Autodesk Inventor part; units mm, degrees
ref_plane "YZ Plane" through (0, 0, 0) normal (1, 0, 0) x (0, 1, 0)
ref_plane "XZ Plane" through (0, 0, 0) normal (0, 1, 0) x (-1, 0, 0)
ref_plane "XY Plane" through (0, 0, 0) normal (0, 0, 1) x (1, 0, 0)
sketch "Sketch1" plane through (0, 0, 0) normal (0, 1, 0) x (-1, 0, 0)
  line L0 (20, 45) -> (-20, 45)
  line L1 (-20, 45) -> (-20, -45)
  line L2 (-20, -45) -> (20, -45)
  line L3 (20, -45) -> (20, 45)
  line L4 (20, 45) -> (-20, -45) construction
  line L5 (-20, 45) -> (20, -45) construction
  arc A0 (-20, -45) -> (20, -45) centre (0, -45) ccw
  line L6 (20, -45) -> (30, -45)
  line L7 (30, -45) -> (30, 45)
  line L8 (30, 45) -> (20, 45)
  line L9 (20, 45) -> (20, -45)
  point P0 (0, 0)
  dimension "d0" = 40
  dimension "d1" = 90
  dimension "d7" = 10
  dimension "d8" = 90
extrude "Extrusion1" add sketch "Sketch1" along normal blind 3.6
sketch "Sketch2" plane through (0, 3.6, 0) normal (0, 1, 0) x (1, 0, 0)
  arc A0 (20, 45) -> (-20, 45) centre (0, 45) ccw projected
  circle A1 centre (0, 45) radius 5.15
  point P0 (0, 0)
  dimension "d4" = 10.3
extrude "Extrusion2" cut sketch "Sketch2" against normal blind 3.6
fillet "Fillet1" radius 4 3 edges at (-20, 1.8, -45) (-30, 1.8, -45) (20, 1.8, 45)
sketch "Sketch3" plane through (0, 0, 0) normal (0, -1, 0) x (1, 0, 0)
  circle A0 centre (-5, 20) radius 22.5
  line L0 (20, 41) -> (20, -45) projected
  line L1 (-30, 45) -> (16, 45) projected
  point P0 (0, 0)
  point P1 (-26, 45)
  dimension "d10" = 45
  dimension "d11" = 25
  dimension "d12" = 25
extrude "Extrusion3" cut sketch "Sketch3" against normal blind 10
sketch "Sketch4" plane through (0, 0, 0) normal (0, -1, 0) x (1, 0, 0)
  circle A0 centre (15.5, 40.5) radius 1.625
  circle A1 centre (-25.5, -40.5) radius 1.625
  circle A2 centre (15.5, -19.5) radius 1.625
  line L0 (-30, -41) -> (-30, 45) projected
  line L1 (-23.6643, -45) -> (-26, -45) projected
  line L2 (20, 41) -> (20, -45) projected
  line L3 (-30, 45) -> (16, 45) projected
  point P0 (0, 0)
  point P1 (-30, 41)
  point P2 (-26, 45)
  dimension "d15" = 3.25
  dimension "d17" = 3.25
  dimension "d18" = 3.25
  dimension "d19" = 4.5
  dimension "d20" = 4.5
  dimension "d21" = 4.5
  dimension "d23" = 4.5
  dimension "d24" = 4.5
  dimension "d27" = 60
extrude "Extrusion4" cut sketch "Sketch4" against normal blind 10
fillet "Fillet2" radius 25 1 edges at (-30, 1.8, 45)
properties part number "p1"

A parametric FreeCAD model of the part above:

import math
import FreeCAD as App
import Part
import Sketcher
from FreeCAD import Vector


def edges_at(feature, points):
    """Names of the edges that pass closest to the given points."""
    edges = feature.Shape.Edges
    near = lambda p: min(range(len(edges)), key=lambda i: edges[i].distToShape(Part.Vertex(*p))[0])
    return sorted({f"Edge{near(p) + 1}" for p in points})

doc = App.newDocument("Part")
params = doc.addObject("Spreadsheet::Sheet", "Params")
for row, (alias, value) in enumerate([
    ("sketch1_radius", "20 mm"),
    ("sketch1_width", "10 mm"),
    ("sketch1_height", "90 mm"),
    ("pad1_length", "3.6 mm"),
    ("sketch2_diameter", "10.3 mm"),
    ("pocket1_length", "3.6 mm"),
    ("fillet_radius", "4 mm"),
    ("sketch3_diameter", "45 mm"),
    ("pocket2_length", "10 mm"),
    ("sketch4_diameter", "3.25 mm"),
    ("pocket3_length", "10 mm"),
    ("fillet2_radius", "25 mm"),
], start=1):
    params.set(f"A{row}", alias)
    params.set(f"B{row}", "=" + value)
    params.setAlias(f"B{row}", alias)

body = doc.addObject("PartDesign::Body", "Body")

sketch1 = body.newObject("Sketcher::SketchObject", "Sketch")
sketch1.AttachmentSupport = (doc.getObject("XZ_Plane"), [""])
sketch1.MapMode = "FlatFace"
sketch1.addGeometry(Part.LineSegment(Vector(20, 45, 0), Vector(20, -45, 0)), False)
sketch1.addGeometry(Part.ArcOfCircle(Part.Circle(Vector(0, -45, 0), Vector(0, 0, 1), 20), math.radians(180), math.radians(360)), False)
sketch1.addGeometry(Part.LineSegment(Vector(-20, -45, 0), Vector(-30, -45, 0)), False)
sketch1.addGeometry(Part.LineSegment(Vector(-30, -45, 0), Vector(-30, 45, 0)), False)
sketch1.addGeometry(Part.LineSegment(Vector(-30, 45, 0), Vector(20, 45, 0)), False)
sketch1.addConstraint(Sketcher.Constraint("Tangent", 0, 2, 1, 2))
sketch1.addConstraint(Sketcher.Constraint("Coincident", 1, 1, 2, 1))
sketch1.addConstraint(Sketcher.Constraint("Coincident", 2, 2, 3, 1))
sketch1.addConstraint(Sketcher.Constraint("Coincident", 3, 2, 4, 1))
sketch1.addConstraint(Sketcher.Constraint("Coincident", 4, 2, 0, 1))
sketch1.addConstraint(Sketcher.Constraint("Vertical", 0))
sketch1.addConstraint(Sketcher.Constraint("Horizontal", 2))
sketch1.addConstraint(Sketcher.Constraint("Vertical", 3))
sketch1.addConstraint(Sketcher.Constraint("Horizontal", 4))
sketch1.addConstraint(Sketcher.Constraint("Symmetric", 1, 1, 4, 2, -1, 1))
sketch1.addConstraint(Sketcher.Constraint("Horizontal", 0, 2, 1, 1))
sketch1.addConstraint(Sketcher.Constraint("Radius", 1, 20.0))
sketch1.addConstraint(Sketcher.Constraint("DistanceX", 2, 2, 2, 1, 10.0))
sketch1.addConstraint(Sketcher.Constraint("DistanceY", 0, 2, 0, 1, 90.0))
sketch1.setExpression("Constraints[11]", "Params.sketch1_radius")
sketch1.setExpression("Constraints[12]", "Params.sketch1_width")
sketch1.setExpression("Constraints[13]", "Params.sketch1_height")
pad1 = body.newObject("PartDesign::Pad", "Pad")
pad1.Profile = sketch1
pad1.setExpression("Length", "Params.pad1_length")
pad1.Reversed = True

sketch2 = body.newObject("Sketcher::SketchObject", "Sketch001")
sketch2.AttachmentSupport = (doc.getObject("XZ_Plane"), [""])
sketch2.MapMode = "FlatFace"
sketch2.AttachmentOffset = App.Placement(Vector(0, 0, -3.6), App.Rotation())
sketch2.addGeometry(Part.Circle(Vector(0, -45, 0), Vector(0, 0, 1), 5.15), False)
sketch2.addConstraint(Sketcher.Constraint("PointOnObject", 0, 3, -2))
sketch2.addConstraint(Sketcher.Constraint("Diameter", 0, 10.3))
sketch2.addConstraint(Sketcher.Constraint("DistanceY", 0, 3, -1, 1, 45.0))
sketch2.setExpression("Constraints[1]", "Params.sketch2_diameter")
pocket1 = body.newObject("PartDesign::Pocket", "Pocket")
pocket1.Profile = sketch2
pocket1.setExpression("Length", "Params.pocket1_length")
pocket1.Reversed = True
doc.recompute()

fillet = body.newObject("PartDesign::Fillet", "Fillet")
fillet.Base = (pocket1, edges_at(pocket1, [(-20, 1.8, -45), (-30, 1.8, -45), (20, 1.8, 45)]))
fillet.setExpression("Radius", "Params.fillet_radius")

sketch3 = body.newObject("Sketcher::SketchObject", "Sketch002")
sketch3.AttachmentSupport = (doc.getObject("XZ_Plane"), [""])
sketch3.MapMode = "FlatFace"
sketch3.addGeometry(Part.Circle(Vector(-5, 20, 0), Vector(0, 0, 1), 22.5), False)
sketch3.addConstraint(Sketcher.Constraint("Diameter", 0, 45.0))
sketch3.addConstraint(Sketcher.Constraint("DistanceX", 0, 3, -1, 1, 5.0))
sketch3.addConstraint(Sketcher.Constraint("DistanceY", -1, 1, 0, 3, 20.0))
sketch3.setExpression("Constraints[0]", "Params.sketch3_diameter")
pocket2 = body.newObject("PartDesign::Pocket", "Pocket001")
pocket2.Profile = sketch3
pocket2.setExpression("Length", "Params.pocket2_length")

sketch4 = body.newObject("Sketcher::SketchObject", "Sketch003")
sketch4.AttachmentSupport = (doc.getObject("XZ_Plane"), [""])
sketch4.MapMode = "FlatFace"
sketch4.addGeometry(Part.Circle(Vector(15.5, 40.5, 0), Vector(0, 0, 1), 1.625), False)
sketch4.addGeometry(Part.Circle(Vector(-25.5, -40.5, 0), Vector(0, 0, 1), 1.625), False)
sketch4.addGeometry(Part.Circle(Vector(15.5, -19.5, 0), Vector(0, 0, 1), 1.625), False)
sketch4.addConstraint(Sketcher.Constraint("Equal", 0, 1))
sketch4.addConstraint(Sketcher.Constraint("Equal", 1, 2))
sketch4.addConstraint(Sketcher.Constraint("Vertical", 0, 3, 2, 3))
sketch4.addConstraint(Sketcher.Constraint("Diameter", 0, 3.25))
sketch4.addConstraint(Sketcher.Constraint("DistanceY", 2, 3, 0, 3, 60.0))
sketch4.addConstraint(Sketcher.Constraint("DistanceX", 1, 3, 0, 3, 41.0))
sketch4.addConstraint(Sketcher.Constraint("DistanceY", 1, 3, 0, 3, 81.0))
sketch4.addConstraint(Sketcher.Constraint("DistanceX", -1, 1, 0, 3, 15.5))
sketch4.addConstraint(Sketcher.Constraint("DistanceY", -1, 1, 0, 3, 40.5))
sketch4.setExpression("Constraints[3]", "Params.sketch4_diameter")
pocket3 = body.newObject("PartDesign::Pocket", "Pocket002")
pocket3.Profile = sketch4
pocket3.setExpression("Length", "Params.pocket3_length")
doc.recompute()

fillet2 = body.newObject("PartDesign::Fillet", "Fillet001")
fillet2.Base = (pocket3, edges_at(pocket3, [(-30, 1.8, 45)]))
fillet2.setExpression("Radius", "Params.fillet2_radius")

doc.recompute()
